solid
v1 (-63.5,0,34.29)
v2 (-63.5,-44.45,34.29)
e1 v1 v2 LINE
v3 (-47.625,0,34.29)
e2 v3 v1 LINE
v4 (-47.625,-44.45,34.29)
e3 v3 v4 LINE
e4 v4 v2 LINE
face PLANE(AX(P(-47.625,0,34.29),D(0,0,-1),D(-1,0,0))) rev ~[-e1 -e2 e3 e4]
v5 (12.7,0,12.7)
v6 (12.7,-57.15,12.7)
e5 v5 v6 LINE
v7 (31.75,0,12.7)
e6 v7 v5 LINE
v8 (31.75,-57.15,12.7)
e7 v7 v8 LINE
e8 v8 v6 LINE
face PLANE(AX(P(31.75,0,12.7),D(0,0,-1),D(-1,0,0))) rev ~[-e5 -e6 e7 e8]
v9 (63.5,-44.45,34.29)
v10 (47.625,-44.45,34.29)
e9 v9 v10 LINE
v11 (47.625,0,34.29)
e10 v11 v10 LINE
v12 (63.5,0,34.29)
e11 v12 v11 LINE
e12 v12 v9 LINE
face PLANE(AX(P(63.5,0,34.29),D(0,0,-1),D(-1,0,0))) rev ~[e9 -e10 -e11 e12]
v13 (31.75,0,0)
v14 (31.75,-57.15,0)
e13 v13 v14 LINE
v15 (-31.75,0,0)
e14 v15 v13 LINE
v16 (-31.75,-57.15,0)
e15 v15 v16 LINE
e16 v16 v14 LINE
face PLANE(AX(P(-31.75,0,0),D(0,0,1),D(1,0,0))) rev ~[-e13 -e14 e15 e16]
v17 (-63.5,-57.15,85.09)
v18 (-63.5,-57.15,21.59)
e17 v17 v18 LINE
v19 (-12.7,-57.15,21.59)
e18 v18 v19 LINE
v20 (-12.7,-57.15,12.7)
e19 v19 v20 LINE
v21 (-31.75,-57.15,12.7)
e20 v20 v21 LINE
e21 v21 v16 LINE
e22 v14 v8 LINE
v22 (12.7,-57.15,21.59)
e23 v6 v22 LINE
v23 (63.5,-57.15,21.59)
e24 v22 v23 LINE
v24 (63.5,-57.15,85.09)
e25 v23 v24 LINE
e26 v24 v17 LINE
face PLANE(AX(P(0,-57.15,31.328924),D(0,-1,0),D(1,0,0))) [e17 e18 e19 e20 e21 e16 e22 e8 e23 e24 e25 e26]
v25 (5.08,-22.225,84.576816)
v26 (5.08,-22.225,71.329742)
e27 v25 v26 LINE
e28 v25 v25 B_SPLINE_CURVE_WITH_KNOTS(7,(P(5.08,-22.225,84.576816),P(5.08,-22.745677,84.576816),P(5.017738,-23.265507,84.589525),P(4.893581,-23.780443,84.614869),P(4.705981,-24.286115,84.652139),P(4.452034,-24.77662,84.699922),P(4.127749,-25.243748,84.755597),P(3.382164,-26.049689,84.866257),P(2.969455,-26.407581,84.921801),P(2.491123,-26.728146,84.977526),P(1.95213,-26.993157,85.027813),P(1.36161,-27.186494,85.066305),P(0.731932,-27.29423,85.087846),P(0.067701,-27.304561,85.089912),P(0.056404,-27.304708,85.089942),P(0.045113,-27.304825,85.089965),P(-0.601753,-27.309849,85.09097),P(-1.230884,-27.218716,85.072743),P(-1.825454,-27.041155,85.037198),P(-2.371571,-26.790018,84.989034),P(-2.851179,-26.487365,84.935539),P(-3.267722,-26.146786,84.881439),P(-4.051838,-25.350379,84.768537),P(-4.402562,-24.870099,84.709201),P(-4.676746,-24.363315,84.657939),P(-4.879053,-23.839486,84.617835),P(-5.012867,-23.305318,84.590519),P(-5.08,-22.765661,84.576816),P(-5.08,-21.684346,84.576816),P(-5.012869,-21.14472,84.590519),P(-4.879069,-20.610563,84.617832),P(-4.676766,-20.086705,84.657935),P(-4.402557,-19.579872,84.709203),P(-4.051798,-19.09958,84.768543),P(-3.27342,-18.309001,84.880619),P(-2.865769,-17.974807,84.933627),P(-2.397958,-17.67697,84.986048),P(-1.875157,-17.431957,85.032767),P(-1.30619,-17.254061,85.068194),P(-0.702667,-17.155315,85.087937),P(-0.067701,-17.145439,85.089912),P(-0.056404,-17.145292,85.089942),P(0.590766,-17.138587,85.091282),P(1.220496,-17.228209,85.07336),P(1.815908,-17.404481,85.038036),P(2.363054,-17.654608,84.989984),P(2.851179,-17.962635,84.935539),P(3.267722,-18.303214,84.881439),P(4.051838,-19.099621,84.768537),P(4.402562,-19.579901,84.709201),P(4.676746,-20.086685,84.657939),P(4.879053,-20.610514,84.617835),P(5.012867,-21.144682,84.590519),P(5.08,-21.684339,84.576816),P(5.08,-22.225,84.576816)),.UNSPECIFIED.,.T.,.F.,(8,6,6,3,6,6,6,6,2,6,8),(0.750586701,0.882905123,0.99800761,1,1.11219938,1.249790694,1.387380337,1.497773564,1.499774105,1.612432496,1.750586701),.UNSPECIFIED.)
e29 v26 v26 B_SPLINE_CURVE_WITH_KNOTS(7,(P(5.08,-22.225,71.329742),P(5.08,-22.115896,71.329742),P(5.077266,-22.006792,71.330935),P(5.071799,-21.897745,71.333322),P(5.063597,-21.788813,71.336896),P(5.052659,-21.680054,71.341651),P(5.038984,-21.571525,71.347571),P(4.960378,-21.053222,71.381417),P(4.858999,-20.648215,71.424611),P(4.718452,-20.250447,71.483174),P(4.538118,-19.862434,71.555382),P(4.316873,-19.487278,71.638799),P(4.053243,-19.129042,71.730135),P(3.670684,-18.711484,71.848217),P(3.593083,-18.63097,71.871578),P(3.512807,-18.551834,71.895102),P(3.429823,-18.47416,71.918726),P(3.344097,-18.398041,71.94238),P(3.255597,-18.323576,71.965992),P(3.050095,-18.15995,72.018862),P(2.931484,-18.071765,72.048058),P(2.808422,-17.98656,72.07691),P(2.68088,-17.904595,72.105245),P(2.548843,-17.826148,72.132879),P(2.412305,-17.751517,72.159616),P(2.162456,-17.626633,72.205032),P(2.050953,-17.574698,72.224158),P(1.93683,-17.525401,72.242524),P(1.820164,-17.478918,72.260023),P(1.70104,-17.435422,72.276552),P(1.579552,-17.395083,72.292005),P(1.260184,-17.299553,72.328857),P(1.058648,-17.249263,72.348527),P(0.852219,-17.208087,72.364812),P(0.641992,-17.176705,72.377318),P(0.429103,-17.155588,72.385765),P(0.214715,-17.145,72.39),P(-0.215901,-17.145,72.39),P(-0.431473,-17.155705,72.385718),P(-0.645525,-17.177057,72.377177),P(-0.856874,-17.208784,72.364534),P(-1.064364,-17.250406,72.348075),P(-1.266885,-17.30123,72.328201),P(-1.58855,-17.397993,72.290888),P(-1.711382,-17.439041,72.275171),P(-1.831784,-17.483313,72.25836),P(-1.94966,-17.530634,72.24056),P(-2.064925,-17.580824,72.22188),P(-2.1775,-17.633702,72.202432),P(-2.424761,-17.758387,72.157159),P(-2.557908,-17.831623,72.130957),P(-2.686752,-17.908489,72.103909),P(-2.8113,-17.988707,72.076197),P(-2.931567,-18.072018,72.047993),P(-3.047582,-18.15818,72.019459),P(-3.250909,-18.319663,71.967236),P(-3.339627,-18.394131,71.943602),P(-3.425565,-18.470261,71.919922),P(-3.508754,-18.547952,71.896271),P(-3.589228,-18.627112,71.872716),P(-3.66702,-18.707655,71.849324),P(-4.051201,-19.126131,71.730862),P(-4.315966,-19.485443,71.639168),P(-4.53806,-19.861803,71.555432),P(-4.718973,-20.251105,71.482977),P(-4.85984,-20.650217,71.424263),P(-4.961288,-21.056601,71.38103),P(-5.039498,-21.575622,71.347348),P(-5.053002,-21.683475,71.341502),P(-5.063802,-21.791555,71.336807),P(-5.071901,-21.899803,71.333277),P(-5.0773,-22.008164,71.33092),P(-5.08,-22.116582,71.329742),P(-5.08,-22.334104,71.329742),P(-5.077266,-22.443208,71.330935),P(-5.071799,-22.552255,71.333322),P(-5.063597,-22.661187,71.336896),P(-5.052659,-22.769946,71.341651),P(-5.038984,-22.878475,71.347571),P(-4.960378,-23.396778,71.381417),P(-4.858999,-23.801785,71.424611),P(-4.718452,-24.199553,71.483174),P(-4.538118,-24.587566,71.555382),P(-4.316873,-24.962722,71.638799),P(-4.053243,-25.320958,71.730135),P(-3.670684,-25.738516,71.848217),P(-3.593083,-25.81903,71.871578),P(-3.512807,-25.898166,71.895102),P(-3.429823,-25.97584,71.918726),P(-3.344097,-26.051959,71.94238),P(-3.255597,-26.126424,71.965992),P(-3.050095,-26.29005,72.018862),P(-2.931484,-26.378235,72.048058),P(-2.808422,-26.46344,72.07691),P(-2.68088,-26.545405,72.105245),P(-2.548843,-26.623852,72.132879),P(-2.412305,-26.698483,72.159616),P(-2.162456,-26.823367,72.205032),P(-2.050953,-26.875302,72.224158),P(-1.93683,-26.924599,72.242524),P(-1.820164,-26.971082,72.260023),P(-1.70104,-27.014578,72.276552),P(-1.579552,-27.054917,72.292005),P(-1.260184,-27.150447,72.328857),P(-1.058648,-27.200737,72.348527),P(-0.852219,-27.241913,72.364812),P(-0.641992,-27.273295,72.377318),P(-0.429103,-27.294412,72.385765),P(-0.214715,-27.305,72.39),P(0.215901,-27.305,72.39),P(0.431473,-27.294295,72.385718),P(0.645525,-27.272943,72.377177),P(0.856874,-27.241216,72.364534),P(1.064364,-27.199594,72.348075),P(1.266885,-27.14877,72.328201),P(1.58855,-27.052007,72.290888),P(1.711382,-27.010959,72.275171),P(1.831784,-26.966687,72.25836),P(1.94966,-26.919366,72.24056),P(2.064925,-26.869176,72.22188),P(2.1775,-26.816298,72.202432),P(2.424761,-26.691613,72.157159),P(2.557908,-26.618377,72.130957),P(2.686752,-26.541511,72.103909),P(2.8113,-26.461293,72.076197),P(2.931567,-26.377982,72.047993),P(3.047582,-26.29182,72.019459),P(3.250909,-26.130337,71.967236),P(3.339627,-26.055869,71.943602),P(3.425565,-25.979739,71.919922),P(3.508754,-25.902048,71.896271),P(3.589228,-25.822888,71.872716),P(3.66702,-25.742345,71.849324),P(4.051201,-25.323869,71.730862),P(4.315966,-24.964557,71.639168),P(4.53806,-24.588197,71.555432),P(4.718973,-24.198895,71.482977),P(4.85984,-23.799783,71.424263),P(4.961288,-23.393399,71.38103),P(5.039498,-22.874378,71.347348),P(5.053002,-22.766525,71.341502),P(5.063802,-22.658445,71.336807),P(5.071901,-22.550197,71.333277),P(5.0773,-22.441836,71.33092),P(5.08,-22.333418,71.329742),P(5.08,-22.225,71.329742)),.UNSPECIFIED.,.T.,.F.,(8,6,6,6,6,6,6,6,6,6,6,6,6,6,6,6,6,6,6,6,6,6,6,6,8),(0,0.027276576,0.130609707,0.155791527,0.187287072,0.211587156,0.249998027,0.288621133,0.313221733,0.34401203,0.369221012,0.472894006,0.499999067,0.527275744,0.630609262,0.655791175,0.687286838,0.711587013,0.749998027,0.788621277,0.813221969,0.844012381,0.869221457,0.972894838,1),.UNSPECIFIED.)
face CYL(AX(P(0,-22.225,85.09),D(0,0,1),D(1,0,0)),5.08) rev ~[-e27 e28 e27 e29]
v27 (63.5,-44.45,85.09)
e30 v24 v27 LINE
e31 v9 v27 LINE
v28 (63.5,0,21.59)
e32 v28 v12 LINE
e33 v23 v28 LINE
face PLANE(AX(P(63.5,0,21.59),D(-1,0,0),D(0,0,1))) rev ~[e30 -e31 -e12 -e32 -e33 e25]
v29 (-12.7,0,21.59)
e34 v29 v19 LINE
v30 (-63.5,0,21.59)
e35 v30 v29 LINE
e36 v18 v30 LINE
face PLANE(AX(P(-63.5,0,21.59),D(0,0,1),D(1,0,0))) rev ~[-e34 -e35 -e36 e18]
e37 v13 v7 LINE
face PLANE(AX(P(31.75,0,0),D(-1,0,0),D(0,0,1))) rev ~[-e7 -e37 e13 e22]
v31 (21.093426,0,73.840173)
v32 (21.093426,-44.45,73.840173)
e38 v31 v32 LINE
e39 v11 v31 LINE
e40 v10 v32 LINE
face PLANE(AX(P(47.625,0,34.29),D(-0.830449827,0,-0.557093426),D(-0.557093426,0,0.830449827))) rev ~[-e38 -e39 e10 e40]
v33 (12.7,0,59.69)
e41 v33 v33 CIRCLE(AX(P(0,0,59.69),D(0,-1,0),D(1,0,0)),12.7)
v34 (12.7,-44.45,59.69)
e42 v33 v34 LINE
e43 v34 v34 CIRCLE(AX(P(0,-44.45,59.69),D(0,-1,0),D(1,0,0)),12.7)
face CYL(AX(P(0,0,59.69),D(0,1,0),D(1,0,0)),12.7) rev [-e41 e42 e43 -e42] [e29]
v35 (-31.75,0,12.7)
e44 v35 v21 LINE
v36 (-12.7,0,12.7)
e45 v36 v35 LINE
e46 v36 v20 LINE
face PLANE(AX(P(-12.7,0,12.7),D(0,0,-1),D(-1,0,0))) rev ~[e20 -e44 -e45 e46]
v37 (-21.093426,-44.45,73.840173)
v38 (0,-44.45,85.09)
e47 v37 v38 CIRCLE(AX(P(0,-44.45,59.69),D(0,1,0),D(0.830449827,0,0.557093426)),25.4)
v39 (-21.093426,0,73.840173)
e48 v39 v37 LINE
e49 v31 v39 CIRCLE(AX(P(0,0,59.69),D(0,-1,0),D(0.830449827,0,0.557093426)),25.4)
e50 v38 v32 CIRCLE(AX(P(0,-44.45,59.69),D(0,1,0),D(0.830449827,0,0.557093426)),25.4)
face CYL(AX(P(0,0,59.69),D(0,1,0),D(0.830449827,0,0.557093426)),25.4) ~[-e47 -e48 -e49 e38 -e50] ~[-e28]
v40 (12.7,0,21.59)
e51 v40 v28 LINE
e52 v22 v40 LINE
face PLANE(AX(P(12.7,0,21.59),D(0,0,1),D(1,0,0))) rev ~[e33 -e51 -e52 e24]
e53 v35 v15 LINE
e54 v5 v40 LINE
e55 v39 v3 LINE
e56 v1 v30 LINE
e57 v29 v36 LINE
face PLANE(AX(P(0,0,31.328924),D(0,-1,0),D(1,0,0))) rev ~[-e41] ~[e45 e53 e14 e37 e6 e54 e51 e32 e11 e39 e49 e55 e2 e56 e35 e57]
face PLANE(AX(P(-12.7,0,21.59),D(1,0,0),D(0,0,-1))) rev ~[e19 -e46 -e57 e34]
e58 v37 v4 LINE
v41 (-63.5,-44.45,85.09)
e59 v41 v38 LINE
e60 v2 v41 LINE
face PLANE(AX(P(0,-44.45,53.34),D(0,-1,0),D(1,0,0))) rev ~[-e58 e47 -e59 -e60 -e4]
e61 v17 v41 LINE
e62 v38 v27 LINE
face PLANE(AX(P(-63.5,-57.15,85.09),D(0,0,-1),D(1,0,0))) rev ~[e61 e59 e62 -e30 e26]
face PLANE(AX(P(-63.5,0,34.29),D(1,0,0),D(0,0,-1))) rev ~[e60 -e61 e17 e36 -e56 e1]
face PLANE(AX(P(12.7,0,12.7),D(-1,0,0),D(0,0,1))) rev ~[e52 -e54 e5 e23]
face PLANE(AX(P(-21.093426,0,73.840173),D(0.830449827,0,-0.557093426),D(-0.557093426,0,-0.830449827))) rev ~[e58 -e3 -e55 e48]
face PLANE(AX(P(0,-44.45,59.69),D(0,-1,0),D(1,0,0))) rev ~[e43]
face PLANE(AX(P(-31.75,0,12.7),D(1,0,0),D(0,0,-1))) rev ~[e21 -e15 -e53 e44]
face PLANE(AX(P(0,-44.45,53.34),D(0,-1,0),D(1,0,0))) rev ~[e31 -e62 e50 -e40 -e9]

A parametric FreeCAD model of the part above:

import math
import FreeCAD as App
import Part
import Sketcher
Q = App.Units.Quantity


def add_polygon(sketch, points):
    """Adds a closed chain of lines whose ends are joined by coincident constraints."""
    first, n = sketch.GeometryCount, len(points)
    for a, b in zip(points, points[1:] + points[:1]):
        sketch.addGeometry(Part.LineSegment(App.Vector(*a, 0), App.Vector(*b, 0)), False)
    for i in range(n):
        sketch.addConstraint(Sketcher.Constraint("Coincident", first + i, 2, first + (i + 1) % n, 1))

doc = App.newDocument("Part")
params = doc.addObject("Spreadsheet::Sheet", "Params")
for row, (alias, value) in enumerate([
    ("sketch1_radius", "1 in"),
    ("sketch1_width", "2 in"),
    ("sketch1_width2", "2.5 in"),
    ("sketch1_height", "0.5 in"),
    ("sketch1_height2", "0.35 in"),
    ("pad1_length", "2.25 in"),
    ("sketch2_width", "5 in"),
    ("sketch2_height", "2.5 in"),
    ("pad2_length", "0.5 in"),
    ("sketch3_diameter", "1 in"),
    ("pocket1_length", "1.75 in"),
    ("sketch4_diameter", "0.4 in"),
    ("pocket2_length", "13.761258 mm"),
], start=1):
    params.set(f"A{row}", alias)
    params.set(f"B{row}", "=" + value)
    params.setAlias(f"B{row}", alias)

body = doc.addObject("PartDesign::Body", "Body")

sketch1 = body.newObject("Sketcher::SketchObject", "Sketch")
sketch1.AttachmentSupport = (doc.getObject("XZ_Plane"), [""])
sketch1.MapMode = "FlatFace"
sketch1.addGeometry([
    Part.LineSegment(App.Vector(-32, 0, 0), App.Vector(32, 0, 0)),
    Part.LineSegment(App.Vector(32, 0, 0), App.Vector(32, 13, 0)),
    Part.LineSegment(App.Vector(32, 13, 0), App.Vector(13, 13, 0)),
    Part.LineSegment(App.Vector(13, 13, 0), App.Vector(13, 22, 0)),
    Part.LineSegment(App.Vector(13, 22, 0), App.Vector(64, 22, 0)),
    Part.LineSegment(App.Vector(64, 22, 0), App.Vector(64, 34, 0)),
    Part.LineSegment(App.Vector(64, 34, 0), App.Vector(48, 34, 0)),
    Part.LineSegment(App.Vector(48, 34, 0), App.Vector(21, 74, 0)),
    Part.ArcOfCircle(Part.Circle(App.Vector(0, 60, 0), App.Vector(0, 0, 1), 25), math.radians(34), math.radians(146)),
    Part.LineSegment(App.Vector(-21, 74, 0), App.Vector(-48, 34, 0)),
    Part.LineSegment(App.Vector(-48, 34, 0), App.Vector(-64, 34, 0)),
    Part.LineSegment(App.Vector(-64, 34, 0), App.Vector(-64, 22, 0)),
    Part.LineSegment(App.Vector(-64, 22, 0), App.Vector(-13, 22, 0)),
    Part.LineSegment(App.Vector(-13, 22, 0), App.Vector(-13, 13, 0)),
    Part.LineSegment(App.Vector(-13, 13, 0), App.Vector(-32, 13, 0)),
    Part.LineSegment(App.Vector(-32, 13, 0), App.Vector(-32, 0, 0)),
], False)
sketch1.addConstraint([
    Sketcher.Constraint("Coincident", 0, 2, 1, 1),
    Sketcher.Constraint("Coincident", 1, 2, 2, 1),
    Sketcher.Constraint("Coincident", 2, 2, 3, 1),
    Sketcher.Constraint("Coincident", 3, 2, 4, 1),
    Sketcher.Constraint("Coincident", 4, 2, 5, 1),
    Sketcher.Constraint("Coincident", 5, 2, 6, 1),
    Sketcher.Constraint("Coincident", 6, 2, 7, 1),
    Sketcher.Constraint("Tangent", 7, 2, 8, 1),
    Sketcher.Constraint("Tangent", 8, 2, 9, 1),
    Sketcher.Constraint("Coincident", 9, 2, 10, 1),
    Sketcher.Constraint("Coincident", 10, 2, 11, 1),
    Sketcher.Constraint("Coincident", 11, 2, 12, 1),
    Sketcher.Constraint("Coincident", 12, 2, 13, 1),
    Sketcher.Constraint("Coincident", 13, 2, 14, 1),
    Sketcher.Constraint("Coincident", 14, 2, 15, 1),
    Sketcher.Constraint("Coincident", 15, 2, 0, 1),
    Sketcher.Constraint("Horizontal", 0),
    Sketcher.Constraint("Vertical", 1),
    Sketcher.Constraint("Horizontal", 2),
    Sketcher.Constraint("Vertical", 3),
    Sketcher.Constraint("Horizontal", 4),
    Sketcher.Constraint("Vertical", 5),
    Sketcher.Constraint("Horizontal", 6),
    Sketcher.Constraint("Horizontal", 10),
    Sketcher.Constraint("Vertical", 11),
    Sketcher.Constraint("Horizontal", 12),
    Sketcher.Constraint("Vertical", 13),
    Sketcher.Constraint("Horizontal", 14),
    Sketcher.Constraint("Vertical", 15),
    Sketcher.Constraint("Symmetric", 0, 2, 15, 2, -1, 1),
    Sketcher.Constraint("Symmetric", 7, 2, 8, 2, -2),
    Sketcher.Constraint("Symmetric", 5, 2, 10, 2, -2),
    Sketcher.Constraint("Symmetric", 3, 2, 12, 2, -2),
    Sketcher.Constraint("Horizontal", 2, 2, 13, 2),
    Sketcher.Constraint("Equal", 1, 5),
    Sketcher.Constraint("Radius", 8, Q("1 in")),
    Sketcher.Constraint("DistanceX", 4, 1, 4, 2, Q("2 in")),
    Sketcher.Constraint("DistanceX", 0, 1, 0, 2, Q("2.5 in")),
    Sketcher.Constraint("DistanceY", 1, 1, 1, 2, Q("0.5 in")),
    Sketcher.Constraint("DistanceY", 9, 2, 8, 3, Q("1 in")),
    Sketcher.Constraint("DistanceX", 10, 2, 3, 2, Q("3 in")),
    Sketcher.Constraint("DistanceY", 3, 1, 3, 2, Q("0.35 in")),
    Sketcher.Constraint("DistanceX", 6, 2, 6, 1, Q("0.625 in")),
])
sketch1.setExpression("Constraints[35]", "Params.sketch1_radius")
sketch1.setExpression("Constraints[36]", "Params.sketch1_width")
sketch1.setExpression("Constraints[37]", "Params.sketch1_width2")
sketch1.setExpression("Constraints[38]", "Params.sketch1_height")
sketch1.setExpression("Constraints[41]", "Params.sketch1_height2")
pad1 = body.newObject("PartDesign::Pad", "Pad")
pad1.Profile = sketch1
pad1.setExpression("Length", "Params.pad1_length")

sketch2 = body.newObject("Sketcher::SketchObject", "Sketch001")
sketch2.AttachmentSupport = (doc.getObject("XZ_Plane"), [""])
sketch2.MapMode = "FlatFace"
sketch2.AttachmentOffset = App.Placement(App.Vector(0, 0, 2.25 * 25.4), App.Rotation())
add_polygon(sketch2, [(-64, 85), (-64, 22), (64, 22), (64, 85)])
sketch2.addConstraint([
    Sketcher.Constraint("Vertical", 0),
    Sketcher.Constraint("Horizontal", 1),
    Sketcher.Constraint("Vertical", 2),
    Sketcher.Constraint("Horizontal", 3),
    Sketcher.Constraint("DistanceX", 1, 1, 1, 2, Q("5 in")),
    Sketcher.Constraint("DistanceY", 0, 2, 0, 1, Q("2.5 in")),
    Sketcher.Constraint("DistanceX", 0, 2, -1, 1, Q("2.5 in")),
    Sketcher.Constraint("DistanceY", -1, 1, 0, 2, Q("0.85 in")),
])
sketch2.setExpression("Constraints[8]", "Params.sketch2_width")
sketch2.setExpression("Constraints[9]", "Params.sketch2_height")
pad2 = body.newObject("PartDesign::Pad", "Pad001")
pad2.Profile = sketch2
pad2.setExpression("Length", "Params.pad2_length")
pad2.Reversed = True

sketch3 = body.newObject("Sketcher::SketchObject", "Sketch002")
sketch3.AttachmentSupport = (doc.getObject("XZ_Plane"), [""])
sketch3.MapMode = "FlatFace"
sketch3.addGeometry(Part.Circle(App.Vector(0, 60, 0), App.Vector(0, 0, 1), 13), False)
sketch3.addConstraint([
    Sketcher.Constraint("PointOnObject", 0, 3, -2),
    Sketcher.Constraint("Diameter", 0, Q("1 in")),
    Sketcher.Constraint("DistanceY", -1, 1, 0, 3, Q("2.35 in")),
])
sketch3.setExpression("Constraints[1]", "Params.sketch3_diameter")
pocket1 = body.newObject("PartDesign::Pocket", "Pocket")
pocket1.Profile = sketch3
pocket1.setExpression("Length", "Params.pocket1_length")
pocket1.Reversed = True

sketch4 = body.newObject("Sketcher::SketchObject", "Sketch003")
sketch4.AttachmentSupport = (doc.getObject("XY_Plane"), [""])
sketch4.MapMode = "FlatFace"
sketch4.AttachmentOffset = App.Placement(App.Vector(0, 0, 3.35 * 25.4), App.Rotation())
sketch4.addGeometry(Part.Circle(App.Vector(0, -22, 0), App.Vector(0, 0, 1), 5), False)
sketch4.addConstraint([
    Sketcher.Constraint("PointOnObject", 0, 3, -2),
    Sketcher.Constraint("Diameter", 0, Q("0.4 in")),
    Sketcher.Constraint("DistanceY", 0, 3, -1, 1, Q("0.875 in")),
])
sketch4.setExpression("Constraints[1]", "Params.sketch4_diameter")
pocket2 = body.newObject("PartDesign::Pocket", "Pocket001")
pocket2.Profile = sketch4
pocket2.setExpression("Length", "Params.pocket2_length")

doc.recompute()
